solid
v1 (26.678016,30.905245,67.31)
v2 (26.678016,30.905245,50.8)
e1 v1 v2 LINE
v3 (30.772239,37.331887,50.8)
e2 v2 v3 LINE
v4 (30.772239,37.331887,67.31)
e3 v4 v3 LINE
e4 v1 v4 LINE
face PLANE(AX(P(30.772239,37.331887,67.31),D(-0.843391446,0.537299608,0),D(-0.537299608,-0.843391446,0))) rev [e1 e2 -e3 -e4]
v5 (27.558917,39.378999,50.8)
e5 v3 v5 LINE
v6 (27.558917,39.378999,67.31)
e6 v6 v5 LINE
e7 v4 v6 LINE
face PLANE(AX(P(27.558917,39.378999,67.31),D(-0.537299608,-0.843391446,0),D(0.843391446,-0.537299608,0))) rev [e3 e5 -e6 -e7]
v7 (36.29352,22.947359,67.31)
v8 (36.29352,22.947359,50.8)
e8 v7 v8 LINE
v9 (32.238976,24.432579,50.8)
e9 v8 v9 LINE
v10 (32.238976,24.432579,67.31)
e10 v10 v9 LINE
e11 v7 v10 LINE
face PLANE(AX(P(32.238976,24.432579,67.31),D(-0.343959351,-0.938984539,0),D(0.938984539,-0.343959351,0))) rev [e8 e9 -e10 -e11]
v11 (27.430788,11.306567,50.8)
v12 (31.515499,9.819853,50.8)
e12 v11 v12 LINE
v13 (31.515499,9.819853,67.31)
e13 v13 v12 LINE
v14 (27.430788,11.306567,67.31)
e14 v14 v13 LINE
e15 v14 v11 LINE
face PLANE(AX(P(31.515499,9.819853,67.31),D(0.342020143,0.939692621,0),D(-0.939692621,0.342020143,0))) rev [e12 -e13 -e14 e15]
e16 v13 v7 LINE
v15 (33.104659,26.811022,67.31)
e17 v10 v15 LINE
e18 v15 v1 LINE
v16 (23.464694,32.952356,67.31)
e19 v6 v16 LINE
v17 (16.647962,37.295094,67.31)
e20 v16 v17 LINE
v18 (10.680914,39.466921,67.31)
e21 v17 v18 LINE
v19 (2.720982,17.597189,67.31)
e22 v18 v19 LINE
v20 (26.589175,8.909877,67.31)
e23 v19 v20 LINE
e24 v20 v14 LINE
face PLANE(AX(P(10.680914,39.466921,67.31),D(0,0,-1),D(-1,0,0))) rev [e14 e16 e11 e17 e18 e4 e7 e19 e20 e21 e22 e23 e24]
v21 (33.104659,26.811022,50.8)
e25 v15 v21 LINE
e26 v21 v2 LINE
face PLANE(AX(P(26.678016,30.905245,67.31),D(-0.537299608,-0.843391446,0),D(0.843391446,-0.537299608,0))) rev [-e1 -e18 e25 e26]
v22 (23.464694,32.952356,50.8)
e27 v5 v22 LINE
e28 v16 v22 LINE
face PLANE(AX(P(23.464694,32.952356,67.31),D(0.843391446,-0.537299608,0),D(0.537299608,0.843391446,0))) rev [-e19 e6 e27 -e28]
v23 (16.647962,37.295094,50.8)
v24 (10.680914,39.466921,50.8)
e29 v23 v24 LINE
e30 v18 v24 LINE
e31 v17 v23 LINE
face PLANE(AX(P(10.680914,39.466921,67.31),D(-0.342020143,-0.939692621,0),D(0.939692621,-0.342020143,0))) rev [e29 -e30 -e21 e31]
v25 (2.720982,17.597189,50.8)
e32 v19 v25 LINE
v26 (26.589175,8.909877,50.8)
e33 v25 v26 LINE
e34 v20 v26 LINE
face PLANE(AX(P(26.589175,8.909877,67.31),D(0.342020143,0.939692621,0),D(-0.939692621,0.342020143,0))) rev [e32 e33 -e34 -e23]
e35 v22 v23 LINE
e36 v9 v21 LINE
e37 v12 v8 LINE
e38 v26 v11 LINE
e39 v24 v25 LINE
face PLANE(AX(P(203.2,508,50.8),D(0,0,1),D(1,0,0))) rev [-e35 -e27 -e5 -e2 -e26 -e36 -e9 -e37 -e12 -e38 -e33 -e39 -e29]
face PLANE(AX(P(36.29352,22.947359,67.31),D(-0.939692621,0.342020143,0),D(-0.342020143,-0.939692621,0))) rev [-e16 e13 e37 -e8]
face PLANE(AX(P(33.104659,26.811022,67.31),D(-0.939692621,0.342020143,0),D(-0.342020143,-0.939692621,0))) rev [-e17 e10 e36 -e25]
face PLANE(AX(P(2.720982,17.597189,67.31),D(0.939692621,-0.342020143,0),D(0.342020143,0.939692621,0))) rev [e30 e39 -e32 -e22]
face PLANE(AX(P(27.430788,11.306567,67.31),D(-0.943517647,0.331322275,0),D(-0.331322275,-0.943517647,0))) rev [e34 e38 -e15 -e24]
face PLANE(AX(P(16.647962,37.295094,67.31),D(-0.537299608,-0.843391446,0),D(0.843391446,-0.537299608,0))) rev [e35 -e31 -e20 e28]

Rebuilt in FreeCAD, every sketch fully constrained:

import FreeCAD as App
import Part
import Sketcher
from FreeCAD import Vector
Q = App.Units.Quantity


def add_polygon(sketch, points):
    """Adds a closed chain of lines whose ends are joined by coincident constraints."""
    first, n = sketch.GeometryCount, len(points)
    for a, b in zip(points, points[1:] + points[:1]):
        sketch.addGeometry(Part.LineSegment(App.Vector(*a, 0), App.Vector(*b, 0)), False)
    for i in range(n):
        sketch.addConstraint(Sketcher.Constraint("Coincident", first + i, 2, first + (i + 1) % n, 1))

doc = App.newDocument("Part")
body = doc.addObject("PartDesign::Body", "Body")

# Sketch on XY plane
sketch1 = body.newObject("Sketcher::SketchObject", "Sketch")
sketch1.AttachmentSupport = (doc.getObject("XY_Plane"), [""])
sketch1.MapMode = "FlatFace"
add_polygon(sketch1, [(0, 102), (0, 0), (203, 0), (203, 102)])  # lines 0-3
sketch1.addConstraint(Sketcher.Constraint("Vertical", 0))
sketch1.addConstraint(Sketcher.Constraint("Horizontal", 1))
sketch1.addConstraint(Sketcher.Constraint("Vertical", 2))
sketch1.addConstraint(Sketcher.Constraint("Horizontal", 3))
sketch1.addConstraint(Sketcher.Constraint("Coincident", 0, 2, -1, 1))
sketch1.addConstraint(Sketcher.Constraint("DistanceX", 1, 1, 1, 2, Q("8 in")))
sketch1.addConstraint(Sketcher.Constraint("DistanceY", 0, 2, 0, 1, Q("4 in")))
pad1 = body.newObject("PartDesign::Pad", "Pad")
pad1.Profile = sketch1
pad1.Length = Q("2 in")

# Sketch on XY plane
sketch2 = body.newObject("Sketcher::SketchObject", "Sketch001")
sketch2.AttachmentSupport = (doc.getObject("XY_Plane"), [""])
sketch2.MapMode = "FlatFace"
sketch2.AttachmentOffset = App.Placement(Vector(0, 0, 2 * 25.4), App.Rotation())
add_polygon(sketch2, [(16.6, 37.3), (10.7, 39.5), (2.7, 17.6), (26.6, 8.9), (27.4, 11.3), (31.5, 9.8), (36.3, 22.9), (32.2, 24.4), (33.1, 26.8), (26.7, 30.9), (30.8, 37.3), (27.6, 39.4), (23.5, 33)])  # lines 0-12
sketch2.addConstraint(Sketcher.Constraint("Perpendicular", 0, 1))
sketch2.addConstraint(Sketcher.Constraint("Perpendicular", 1, 2))
sketch2.addConstraint(Sketcher.Constraint("Parallel", 2, 4))
sketch2.addConstraint(Sketcher.Constraint("Perpendicular", 4, 5))
sketch2.addConstraint(Sketcher.Constraint("Parallel", 5, 7))
sketch2.addConstraint(Sketcher.Constraint("Perpendicular", 8, 9))
sketch2.addConstraint(Sketcher.Constraint("Perpendicular", 9, 10))
sketch2.addConstraint(Sketcher.Constraint("Perpendicular", 10, 11))
sketch2.addConstraint(Sketcher.Constraint("Perpendicular", 11, 12))
sketch2.addConstraint(Sketcher.Constraint("Equal", 8, 9))
sketch2.addConstraint(Sketcher.Constraint("Equal", 9, 11))
sketch2.addConstraint(Sketcher.Constraint("Distance", 2, Q("1 in")))
sketch2.addConstraint(Sketcher.Constraint("Angle", 0, Q("160 deg")))
sketch2.addConstraint(Sketcher.Constraint("Distance", 8, Q("0.3 in")))
sketch2.addConstraint(Sketcher.Constraint("Angle", 8, Q("147.5 deg")))
sketch2.addConstraint(Sketcher.Constraint("Distance", 0, Q("0.25 in")))
sketch2.addConstraint(Sketcher.Constraint("Distance", 5, Q("0.55 in")))
sketch2.addConstraint(Sketcher.Constraint("Distance", 10, Q("0.15 in")))
sketch2.addConstraint(Sketcher.Constraint("DistanceX", -1, 1, 4, 2, 31.515499))
sketch2.addConstraint(Sketcher.Constraint("DistanceY", -1, 1, 10, 2, 39.378999))
sketch2.addConstraint(Sketcher.Constraint("DistanceX", 2, 2, 6, 2, 5.649801))
sketch2.addConstraint(Sketcher.Constraint("DistanceY", 2, 2, 6, 2, 15.522702))
sketch2.addConstraint(Sketcher.Constraint("Distance", 4, 4.346859))
sketch2.addConstraint(Sketcher.Constraint("Distance", 6, 4.318009))
sketch2.addConstraint(Sketcher.Constraint("DistanceY", -1, 1, 1, 2, 17.597189))
sketch2.addConstraint(Sketcher.Constraint("DistanceY", -1, 1, 5, 2, 22.947359))
pad2 = body.newObject("PartDesign::Pad", "Pad001")
pad2.Profile = sketch2
pad2.Length = Q("0.65 in")

# Sketch on XZ plane
sketch3 = body.newObject("Sketcher::SketchObject", "Sketch002")
sketch3.AttachmentSupport = (doc.getObject("XZ_Plane"), [""])
sketch3.MapMode = "FlatFace"
add_polygon(sketch3, [(0, 51), (0, 0), (203, 0), (203, 51)])  # lines 0-3
sketch3.addConstraint(Sketcher.Constraint("Vertical", 0))
sketch3.addConstraint(Sketcher.Constraint("Horizontal", 1))
sketch3.addConstraint(Sketcher.Constraint("Vertical", 2))
sketch3.addConstraint(Sketcher.Constraint("Horizontal", 3))
sketch3.addConstraint(Sketcher.Constraint("Coincident", 0, 2, -1, 1))
sketch3.addConstraint(Sketcher.Constraint("DistanceX", 1, 1, 1, 2, Q("8 in")))
sketch3.addConstraint(Sketcher.Constraint("DistanceY", 0, 2, 0, 1, Q("2 in")))
pocket1 = body.newObject("PartDesign::Pocket", "Pocket")
pocket1.Profile = sketch3
pocket1.Length = Q("20 in")

doc.recompute()
